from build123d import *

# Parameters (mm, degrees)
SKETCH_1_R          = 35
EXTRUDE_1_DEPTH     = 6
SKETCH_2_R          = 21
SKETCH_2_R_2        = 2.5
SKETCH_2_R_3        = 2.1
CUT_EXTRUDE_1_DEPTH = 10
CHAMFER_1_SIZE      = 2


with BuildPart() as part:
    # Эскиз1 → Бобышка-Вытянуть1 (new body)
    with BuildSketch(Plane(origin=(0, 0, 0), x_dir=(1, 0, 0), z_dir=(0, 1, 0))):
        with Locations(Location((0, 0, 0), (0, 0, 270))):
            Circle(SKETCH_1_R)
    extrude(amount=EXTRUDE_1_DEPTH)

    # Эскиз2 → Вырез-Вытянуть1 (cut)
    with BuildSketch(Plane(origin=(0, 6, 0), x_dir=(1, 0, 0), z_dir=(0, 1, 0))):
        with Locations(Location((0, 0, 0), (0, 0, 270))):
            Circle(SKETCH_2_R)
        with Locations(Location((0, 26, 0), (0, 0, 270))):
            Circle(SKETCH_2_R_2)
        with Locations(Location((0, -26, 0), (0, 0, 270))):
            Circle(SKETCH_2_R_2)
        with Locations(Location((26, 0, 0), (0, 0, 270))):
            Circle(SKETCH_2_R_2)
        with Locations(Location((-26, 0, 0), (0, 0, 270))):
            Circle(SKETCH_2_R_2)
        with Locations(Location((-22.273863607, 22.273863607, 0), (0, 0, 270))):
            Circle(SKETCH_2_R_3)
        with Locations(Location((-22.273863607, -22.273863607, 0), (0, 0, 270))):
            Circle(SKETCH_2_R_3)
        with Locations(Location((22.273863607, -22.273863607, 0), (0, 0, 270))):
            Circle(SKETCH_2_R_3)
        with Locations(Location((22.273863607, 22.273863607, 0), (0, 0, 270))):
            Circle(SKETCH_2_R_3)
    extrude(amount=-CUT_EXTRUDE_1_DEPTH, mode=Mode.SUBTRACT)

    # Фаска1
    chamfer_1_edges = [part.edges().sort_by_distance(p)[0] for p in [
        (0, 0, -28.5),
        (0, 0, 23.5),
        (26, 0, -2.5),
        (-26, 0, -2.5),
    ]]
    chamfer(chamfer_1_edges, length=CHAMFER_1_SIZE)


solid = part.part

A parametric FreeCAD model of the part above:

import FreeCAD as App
import Part
import Sketcher

V = App.Vector


def edges_at(feature, points):
    """Names of the edges that pass closest to the given points."""
    edges = feature.Shape.Edges
    near = lambda p: min(range(len(edges)), key=lambda i: edges[i].distToShape(Part.Vertex(*p))[0])
    return sorted({f"Edge{near(p) + 1}" for p in points})

doc = App.newDocument("Part")
body = doc.addObject("PartDesign::Body", "Body")

# Sketch on XZ plane
sketch1 = body.newObject("Sketcher::SketchObject", "Sketch")
sketch1.AttachmentSupport = (doc.getObject("XZ_Plane"), [""])
sketch1.MapMode = "FlatFace"
sketch1.addGeometry(Part.Circle(V(0, 0, 0), V(0, 0, 1), 35), False)
sketch1.addConstraint(Sketcher.Constraint("Coincident", 0, 3, -1, 1))
sketch1.addConstraint(Sketcher.Constraint("Diameter", 0, 70.0))
pad1 = body.newObject("PartDesign::Pad", "Pad")
pad1.Profile = sketch1
pad1.Length = 6
pad1.Reversed = True

# Sketch on XZ plane
sketch2 = body.newObject("Sketcher::SketchObject", "Sketch001")
sketch2.AttachmentSupport = (doc.getObject("XZ_Plane"), [""])
sketch2.MapMode = "FlatFace"
sketch2.AttachmentOffset = App.Placement(V(0, 0, -6), App.Rotation())
sketch2.addGeometry(Part.Circle(V(0, 0, 0), V(0, 0, 1), 21), False)
sketch2.addGeometry(Part.Circle(V(0, -26, 0), V(0, 0, 1), 2.5), False)
sketch2.addGeometry(Part.Circle(V(0, 26, 0), V(0, 0, 1), 2.5), False)
sketch2.addGeometry(Part.Circle(V(26, 0, 0), V(0, 0, 1), 2.5), False)
sketch2.addGeometry(Part.Circle(V(-26, 0, 0), V(0, 0, 1), 2.5), False)
sketch2.addGeometry(Part.Circle(V(-22.3, -22.3, 0), V(0, 0, 1), 2.1), False)
sketch2.addGeometry(Part.Circle(V(-22.3, 22.3, 0), V(0, 0, 1), 2.1), False)
sketch2.addGeometry(Part.Circle(V(22.3, 22.3, 0), V(0, 0, 1), 2.1), False)
sketch2.addGeometry(Part.Circle(V(22.3, -22.3, 0), V(0, 0, 1), 2.1), False)
sketch2.addConstraint(Sketcher.Constraint("Coincident", 0, 3, -1, 1))
sketch2.addConstraint(Sketcher.Constraint("Equal", 1, 2))
sketch2.addConstraint(Sketcher.Constraint("Equal", 2, 3))
sketch2.addConstraint(Sketcher.Constraint("Equal", 3, 4))
sketch2.addConstraint(Sketcher.Constraint("Equal", 5, 6))
sketch2.addConstraint(Sketcher.Constraint("Equal", 6, 7))
sketch2.addConstraint(Sketcher.Constraint("Equal", 7, 8))
sketch2.addConstraint(Sketcher.Constraint("Symmetric", 1, 3, 2, 3, -1, 1))
sketch2.addConstraint(Sketcher.Constraint("Symmetric", 3, 3, 4, 3, -1, 1))
sketch2.addConstraint(Sketcher.Constraint("Symmetric", 5, 3, 7, 3, -1, 1))
sketch2.addConstraint(Sketcher.Constraint("Symmetric", 6, 3, 8, 3, -1, 1))
sketch2.addConstraint(Sketcher.Constraint("Symmetric", 6, 3, 7, 3, -2))
sketch2.addConstraint(Sketcher.Constraint("PointOnObject", 1, 3, -2))
sketch2.addConstraint(Sketcher.Constraint("PointOnObject", 3, 3, -1))
sketch2.addConstraint(Sketcher.Constraint("Diameter", 0, 42.0))
sketch2.addConstraint(Sketcher.Constraint("Diameter", 1, 5.0))
sketch2.addConstraint(Sketcher.Constraint("Diameter", 5, 4.2))
sketch2.addConstraint(Sketcher.Constraint("DistanceY", 1, 3, -1, 1, 26.0))
sketch2.addConstraint(Sketcher.Constraint("DistanceX", -1, 1, 3, 3, 26.0))
sketch2.addConstraint(Sketcher.Constraint("DistanceX", 5, 3, -1, 1, 22.273864))
sketch2.addConstraint(Sketcher.Constraint("DistanceY", 5, 3, -1, 1, 22.273864))
pocket1 = body.newObject("PartDesign::Pocket", "Pocket")
pocket1.Profile = sketch2
pocket1.Length = 10
pocket1.Reversed = True
doc.recompute()

chamfer = body.newObject("PartDesign::Chamfer", "Chamfer")
chamfer.Base = (pocket1, edges_at(pocket1, [
    (0, 0, -28.5),
    (0, 0, 23.5),
    (26, 0, -2.5),
    (-26, 0, -2.5),
]))
chamfer.Size = 2

doc.recompute()
